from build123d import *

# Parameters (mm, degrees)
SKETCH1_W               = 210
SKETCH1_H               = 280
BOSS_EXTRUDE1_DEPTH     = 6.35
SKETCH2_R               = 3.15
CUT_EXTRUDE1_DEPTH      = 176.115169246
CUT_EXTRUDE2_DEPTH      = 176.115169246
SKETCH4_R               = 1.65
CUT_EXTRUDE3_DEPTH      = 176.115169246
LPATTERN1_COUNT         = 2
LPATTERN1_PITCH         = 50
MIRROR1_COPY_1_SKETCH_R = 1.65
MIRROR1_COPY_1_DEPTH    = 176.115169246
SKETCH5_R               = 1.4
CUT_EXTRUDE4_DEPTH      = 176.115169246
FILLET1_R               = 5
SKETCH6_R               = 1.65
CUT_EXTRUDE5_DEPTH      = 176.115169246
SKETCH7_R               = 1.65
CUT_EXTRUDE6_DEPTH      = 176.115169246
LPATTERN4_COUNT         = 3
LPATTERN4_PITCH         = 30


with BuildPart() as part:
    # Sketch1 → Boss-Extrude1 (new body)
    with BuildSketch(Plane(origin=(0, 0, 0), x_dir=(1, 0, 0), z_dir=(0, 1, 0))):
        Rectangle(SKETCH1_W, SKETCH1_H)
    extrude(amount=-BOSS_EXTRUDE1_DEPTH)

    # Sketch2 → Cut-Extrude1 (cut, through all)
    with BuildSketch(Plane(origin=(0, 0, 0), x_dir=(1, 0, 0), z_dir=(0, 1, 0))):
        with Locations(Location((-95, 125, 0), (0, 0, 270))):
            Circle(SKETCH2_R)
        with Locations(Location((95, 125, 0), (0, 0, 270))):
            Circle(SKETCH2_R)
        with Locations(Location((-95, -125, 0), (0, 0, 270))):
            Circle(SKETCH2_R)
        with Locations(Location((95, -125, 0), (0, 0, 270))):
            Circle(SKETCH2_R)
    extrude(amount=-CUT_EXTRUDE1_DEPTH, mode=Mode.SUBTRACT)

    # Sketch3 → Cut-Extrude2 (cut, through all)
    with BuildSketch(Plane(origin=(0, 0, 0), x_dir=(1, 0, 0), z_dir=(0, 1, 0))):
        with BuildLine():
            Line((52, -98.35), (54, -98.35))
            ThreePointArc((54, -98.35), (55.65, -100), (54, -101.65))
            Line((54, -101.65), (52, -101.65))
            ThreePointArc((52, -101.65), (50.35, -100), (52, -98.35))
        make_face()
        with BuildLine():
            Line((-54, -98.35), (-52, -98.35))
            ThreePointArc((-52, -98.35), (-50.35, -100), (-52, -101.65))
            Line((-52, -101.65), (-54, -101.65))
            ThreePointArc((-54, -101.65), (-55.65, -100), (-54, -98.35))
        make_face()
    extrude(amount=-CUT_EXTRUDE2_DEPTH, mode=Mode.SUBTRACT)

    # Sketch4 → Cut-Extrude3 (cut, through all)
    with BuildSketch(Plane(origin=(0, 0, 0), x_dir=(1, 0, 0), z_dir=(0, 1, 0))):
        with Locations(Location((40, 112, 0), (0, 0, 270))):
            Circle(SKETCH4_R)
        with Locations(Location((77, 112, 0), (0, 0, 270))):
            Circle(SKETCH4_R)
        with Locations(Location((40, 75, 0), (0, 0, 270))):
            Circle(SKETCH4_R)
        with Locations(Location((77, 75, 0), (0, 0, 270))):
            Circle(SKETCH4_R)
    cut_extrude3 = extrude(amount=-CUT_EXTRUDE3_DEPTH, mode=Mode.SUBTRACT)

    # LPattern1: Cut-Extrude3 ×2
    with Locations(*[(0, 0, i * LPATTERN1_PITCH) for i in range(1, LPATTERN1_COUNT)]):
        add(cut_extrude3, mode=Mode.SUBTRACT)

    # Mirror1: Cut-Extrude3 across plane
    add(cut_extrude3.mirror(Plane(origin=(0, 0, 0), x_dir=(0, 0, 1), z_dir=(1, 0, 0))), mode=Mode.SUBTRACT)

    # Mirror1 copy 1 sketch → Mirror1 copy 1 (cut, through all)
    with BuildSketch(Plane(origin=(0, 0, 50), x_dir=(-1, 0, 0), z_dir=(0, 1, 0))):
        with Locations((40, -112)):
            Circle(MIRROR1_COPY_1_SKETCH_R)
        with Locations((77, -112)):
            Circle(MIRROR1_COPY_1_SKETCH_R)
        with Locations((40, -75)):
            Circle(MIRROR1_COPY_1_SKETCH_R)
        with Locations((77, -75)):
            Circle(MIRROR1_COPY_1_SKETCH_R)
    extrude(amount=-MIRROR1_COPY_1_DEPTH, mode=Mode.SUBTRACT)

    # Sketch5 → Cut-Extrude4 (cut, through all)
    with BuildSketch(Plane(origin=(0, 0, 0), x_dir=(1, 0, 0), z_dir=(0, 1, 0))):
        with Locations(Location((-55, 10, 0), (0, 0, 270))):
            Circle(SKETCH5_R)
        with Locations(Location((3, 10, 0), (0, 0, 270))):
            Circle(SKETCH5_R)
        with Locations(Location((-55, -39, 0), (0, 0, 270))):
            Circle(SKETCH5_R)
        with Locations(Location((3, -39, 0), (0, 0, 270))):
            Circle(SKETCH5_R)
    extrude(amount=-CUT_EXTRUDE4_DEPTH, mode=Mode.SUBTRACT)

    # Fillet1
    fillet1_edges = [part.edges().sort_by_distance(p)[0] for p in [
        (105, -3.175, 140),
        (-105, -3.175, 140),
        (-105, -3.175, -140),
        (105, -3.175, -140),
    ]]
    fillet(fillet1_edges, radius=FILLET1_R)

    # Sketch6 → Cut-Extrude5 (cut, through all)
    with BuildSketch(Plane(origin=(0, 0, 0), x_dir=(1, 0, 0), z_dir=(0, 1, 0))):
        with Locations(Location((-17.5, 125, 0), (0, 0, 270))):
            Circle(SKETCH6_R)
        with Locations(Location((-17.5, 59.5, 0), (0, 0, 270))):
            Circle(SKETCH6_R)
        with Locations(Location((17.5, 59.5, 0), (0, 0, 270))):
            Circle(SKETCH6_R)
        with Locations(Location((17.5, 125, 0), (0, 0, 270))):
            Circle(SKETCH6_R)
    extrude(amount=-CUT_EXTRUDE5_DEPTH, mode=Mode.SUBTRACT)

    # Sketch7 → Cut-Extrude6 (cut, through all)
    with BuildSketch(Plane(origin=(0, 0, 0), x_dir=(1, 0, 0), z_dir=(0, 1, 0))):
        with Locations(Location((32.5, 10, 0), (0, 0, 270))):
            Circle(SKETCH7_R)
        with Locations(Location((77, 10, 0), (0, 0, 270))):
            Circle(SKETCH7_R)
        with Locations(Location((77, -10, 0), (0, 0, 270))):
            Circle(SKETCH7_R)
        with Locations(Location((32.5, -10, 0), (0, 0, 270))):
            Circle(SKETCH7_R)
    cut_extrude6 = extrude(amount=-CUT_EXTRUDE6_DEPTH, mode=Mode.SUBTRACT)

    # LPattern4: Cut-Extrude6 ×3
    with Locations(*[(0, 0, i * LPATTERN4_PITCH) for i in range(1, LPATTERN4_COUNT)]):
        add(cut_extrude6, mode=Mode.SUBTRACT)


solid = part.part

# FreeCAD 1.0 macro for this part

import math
import FreeCAD as App
import Part
import Sketcher

V = App.Vector


def edges_at(feature, points):
    """Names of the edges that pass closest to the given points."""
    edges = feature.Shape.Edges
    near = lambda p: min(range(len(edges)), key=lambda i: edges[i].distToShape(Part.Vertex(*p))[0])
    return sorted({f"Edge{near(p) + 1}" for p in points})


def add_polygon(sketch, points):
    """Adds a closed chain of lines whose ends are joined by coincident constraints."""
    first, n = sketch.GeometryCount, len(points)
    for a, b in zip(points, points[1:] + points[:1]):
        sketch.addGeometry(Part.LineSegment(App.Vector(*a, 0), App.Vector(*b, 0)), False)
    for i in range(n):
        sketch.addConstraint(Sketcher.Constraint("Coincident", first + i, 2, first + (i + 1) % n, 1))

doc = App.newDocument("Part")
params = doc.addObject("Spreadsheet::Sheet", "Params")
for row, (alias, value) in enumerate([
    ("sketch1_width", "210 mm"),
    ("sketch1_height", "280 mm"),
    ("pad1_length", "6.35 mm"),
    ("sketch2_diameter", "6.3 mm"),
    ("sketch3_width", "2 mm"),
    ("sketch3_radius", "1.65 mm"),
    ("sketch4_diameter", "3.3 mm"),
    ("linearpattern_pitch", "50 mm"),
    ("sketch5_diameter", "3.3 mm"),
    ("sketch6_diameter", "2.8 mm"),
    ("fillet_radius", "5 mm"),
    ("sketch7_diameter", "3.3 mm"),
    ("sketch8_diameter", "3.3 mm"),
    ("linearpattern2_pitch", "30 mm"),
], start=1):
    params.set(f"A{row}", alias)
    params.set(f"B{row}", "=" + value)
    params.setAlias(f"B{row}", alias)

body = doc.addObject("PartDesign::Body", "Body")

# Sketch on XZ plane
sketch1 = body.newObject("Sketcher::SketchObject", "Sketch")
sketch1.AttachmentSupport = (doc.getObject("XZ_Plane"), [""])
sketch1.MapMode = "FlatFace"
add_polygon(sketch1, [(-105, -140), (-105, 140), (105, 140), (105, -140)])  # lines 0-3
sketch1.addConstraint(Sketcher.Constraint("Vertical", 0))
sketch1.addConstraint(Sketcher.Constraint("Horizontal", 1))
sketch1.addConstraint(Sketcher.Constraint("Vertical", 2))
sketch1.addConstraint(Sketcher.Constraint("Horizontal", 3))
sketch1.addConstraint(Sketcher.Constraint("Symmetric", 0, 2, 2, 2, -1, 1))
sketch1.addConstraint(Sketcher.Constraint("DistanceX", 1, 1, 1, 2, 210.0))
sketch1.addConstraint(Sketcher.Constraint("DistanceY", 0, 1, 0, 2, 280.0))
sketch1.setExpression("Constraints[9]", "Params.sketch1_width")
sketch1.setExpression("Constraints[10]", "Params.sketch1_height")
pad1 = body.newObject("PartDesign::Pad", "Pad")
pad1.Profile = sketch1
pad1.setExpression("Length", "Params.pad1_length")

# Sketch on XZ plane
sketch2 = body.newObject("Sketcher::SketchObject", "Sketch001")
sketch2.AttachmentSupport = (doc.getObject("XZ_Plane"), [""])
sketch2.MapMode = "FlatFace"
sketch2.addGeometry(Part.Circle(V(-95, -125, 0), V(0, 0, 1), 3.15), False)
sketch2.addGeometry(Part.Circle(V(95, -125, 0), V(0, 0, 1), 3.15), False)
sketch2.addGeometry(Part.Circle(V(-95, 125, 0), V(0, 0, 1), 3.15), False)
sketch2.addGeometry(Part.Circle(V(95, 125, 0), V(0, 0, 1), 3.15), False)
sketch2.addConstraint(Sketcher.Constraint("Equal", 0, 1))
sketch2.addConstraint(Sketcher.Constraint("Equal", 1, 2))
sketch2.addConstraint(Sketcher.Constraint("Equal", 2, 3))
sketch2.addConstraint(Sketcher.Constraint("Symmetric", 1, 3, 2, 3, -1, 1))
sketch2.addConstraint(Sketcher.Constraint("Symmetric", 0, 3, 3, 3, -1, 1))
sketch2.addConstraint(Sketcher.Constraint("Symmetric", 0, 3, 1, 3, -2))
sketch2.addConstraint(Sketcher.Constraint("Diameter", 0, 6.3))
sketch2.addConstraint(Sketcher.Constraint("DistanceX", 0, 3, -1, 1, 95.0))
sketch2.addConstraint(Sketcher.Constraint("DistanceY", 0, 3, -1, 1, 125.0))
sketch2.setExpression("Constraints[6]", "Params.sketch2_diameter")
pocket1 = body.newObject("PartDesign::Pocket", "Pocket")
pocket1.Profile = sketch2
pocket1.Type = "ThroughAll"
pocket1.Reversed = True

# Sketch on XZ plane
sketch3 = body.newObject("Sketcher::SketchObject", "Sketch002")
sketch3.AttachmentSupport = (doc.getObject("XZ_Plane"), [""])
sketch3.MapMode = "FlatFace"
sketch3.addGeometry(Part.LineSegment(V(54, 98.35, 0), V(52, 98.35, 0)), False)
sketch3.addGeometry(Part.ArcOfCircle(Part.Circle(V(52, 100, 0), V(0, 0, 1), 1.65), math.radians(90), math.radians(270)), False)
sketch3.addGeometry(Part.LineSegment(V(52, 101.65, 0), V(54, 101.65, 0)), False)
sketch3.addGeometry(Part.ArcOfCircle(Part.Circle(V(54, 100, 0), V(0, 0, 1), 1.65), math.radians(-90), math.radians(90)), False)
sketch3.addGeometry(Part.LineSegment(V(-52, 98.35, 0), V(-54, 98.35, 0)), False)
sketch3.addGeometry(Part.ArcOfCircle(Part.Circle(V(-54, 100, 0), V(0, 0, 1), 1.65), math.radians(90), math.radians(270)), False)
sketch3.addGeometry(Part.LineSegment(V(-54, 101.65, 0), V(-52, 101.65, 0)), False)
sketch3.addGeometry(Part.ArcOfCircle(Part.Circle(V(-52, 100, 0), V(0, 0, 1), 1.65), math.radians(-90), math.radians(90)), False)
sketch3.addConstraint(Sketcher.Constraint("Tangent", 0, 2, 1, 2))
sketch3.addConstraint(Sketcher.Constraint("Tangent", 1, 1, 2, 1))
sketch3.addConstraint(Sketcher.Constraint("Tangent", 2, 2, 3, 2))
sketch3.addConstraint(Sketcher.Constraint("Tangent", 3, 1, 0, 1))
sketch3.addConstraint(Sketcher.Constraint("Tangent", 4, 2, 5, 2))
sketch3.addConstraint(Sketcher.Constraint("Tangent", 5, 1, 6, 1))
sketch3.addConstraint(Sketcher.Constraint("Tangent", 6, 2, 7, 2))
sketch3.addConstraint(Sketcher.Constraint("Tangent", 7, 1, 4, 1))
sketch3.addConstraint(Sketcher.Constraint("Horizontal", 0))
sketch3.addConstraint(Sketcher.Constraint("Horizontal", 2))
sketch3.addConstraint(Sketcher.Constraint("Horizontal", 4))
sketch3.addConstraint(Sketcher.Constraint("Horizontal", 6))
sketch3.addConstraint(Sketcher.Constraint("Equal", 3, 5))
sketch3.addConstraint(Sketcher.Constraint("Symmetric", 3, 3, 5, 3, -2))
sketch3.addConstraint(Sketcher.Constraint("Equal", 2, 4))
sketch3.addConstraint(Sketcher.Constraint("DistanceX", 0, 2, 0, 1, 2.0))
sketch3.addConstraint(Sketcher.Constraint("Radius", 1, 1.65))
sketch3.addConstraint(Sketcher.Constraint("DistanceX", -1, 1, 1, 3, 52.0))
sketch3.addConstraint(Sketcher.Constraint("DistanceY", -1, 1, 1, 3, 100.0))
sketch3.setExpression("Constraints[15]", "Params.sketch3_width")
sketch3.setExpression("Constraints[16]", "Params.sketch3_radius")
pocket2 = body.newObject("PartDesign::Pocket", "Pocket001")
pocket2.Profile = sketch3
pocket2.Type = "ThroughAll"
pocket2.Reversed = True

# Sketch on XZ plane
sketch4 = body.newObject("Sketcher::SketchObject", "Sketch003")
sketch4.AttachmentSupport = (doc.getObject("XZ_Plane"), [""])
sketch4.MapMode = "FlatFace"
sketch4.addGeometry(Part.Circle(V(40, -112, 0), V(0, 0, 1), 1.65), False)
sketch4.addGeometry(Part.Circle(V(77, -112, 0), V(0, 0, 1), 1.65), False)
sketch4.addGeometry(Part.Circle(V(40, -75, 0), V(0, 0, 1), 1.65), False)
sketch4.addGeometry(Part.Circle(V(77, -75, 0), V(0, 0, 1), 1.65), False)
sketch4.addConstraint(Sketcher.Constraint("Equal", 0, 1))
sketch4.addConstraint(Sketcher.Constraint("Equal", 1, 2))
sketch4.addConstraint(Sketcher.Constraint("Equal", 2, 3))
sketch4.addConstraint(Sketcher.Constraint("Horizontal", 0, 3, 1, 3))
sketch4.addConstraint(Sketcher.Constraint("Horizontal", 2, 3, 3, 3))
sketch4.addConstraint(Sketcher.Constraint("Vertical", 0, 3, 2, 3))
sketch4.addConstraint(Sketcher.Constraint("Vertical", 1, 3, 3, 3))
sketch4.addConstraint(Sketcher.Constraint("Diameter", 0, 3.3))
sketch4.addConstraint(Sketcher.Constraint("DistanceX", -1, 1, 0, 3, 40.0))
sketch4.addConstraint(Sketcher.Constraint("DistanceY", 0, 3, -1, 1, 112.0))
sketch4.addConstraint(Sketcher.Constraint("DistanceX", -1, 1, 1, 3, 77.0))
sketch4.addConstraint(Sketcher.Constraint("DistanceY", 2, 3, -1, 1, 75.0))
sketch4.setExpression("Constraints[7]", "Params.sketch4_diameter")
pocket3 = body.newObject("PartDesign::Pocket", "Pocket002")
pocket3.Profile = sketch4
pocket3.Type = "ThroughAll"
pocket3.Reversed = True
doc.recompute()

linearpattern = body.newObject("PartDesign::LinearPattern", "LinearPattern")
linearpattern.Originals = [pocket3]
linearpattern.Direction = (doc.getObject("Z_Axis"), [""])
linearpattern.Mode = "offset"
linearpattern.setExpression("Offset", "Params.linearpattern_pitch")
linearpattern.Occurrences = 2
body.Tip = linearpattern
doc.recompute()

mirrored = body.newObject("PartDesign::Mirrored", "Mirrored")
mirrored.Originals = [pocket3]
mirrored.MirrorPlane = (doc.getObject("YZ_Plane"), [""])
body.Tip = mirrored

# Sketch on XZ plane
sketch5 = body.newObject("Sketcher::SketchObject", "Sketch004")
sketch5.AttachmentSupport = (doc.getObject("XZ_Plane"), [""])
sketch5.MapMode = "FlatFace"
sketch5.addGeometry(Part.Circle(V(-40, -62, 0), V(0, 0, 1), 1.65), False)
sketch5.addGeometry(Part.Circle(V(-77, -62, 0), V(0, 0, 1), 1.65), False)
sketch5.addGeometry(Part.Circle(V(-40, -25, 0), V(0, 0, 1), 1.65), False)
sketch5.addGeometry(Part.Circle(V(-77, -25, 0), V(0, 0, 1), 1.65), False)
sketch5.addConstraint(Sketcher.Constraint("Equal", 0, 1))
sketch5.addConstraint(Sketcher.Constraint("Equal", 1, 2))
sketch5.addConstraint(Sketcher.Constraint("Equal", 2, 3))
sketch5.addConstraint(Sketcher.Constraint("Horizontal", 0, 3, 1, 3))
sketch5.addConstraint(Sketcher.Constraint("Horizontal", 2, 3, 3, 3))
sketch5.addConstraint(Sketcher.Constraint("Vertical", 0, 3, 2, 3))
sketch5.addConstraint(Sketcher.Constraint("Vertical", 1, 3, 3, 3))
sketch5.addConstraint(Sketcher.Constraint("Diameter", 0, 3.3))
sketch5.addConstraint(Sketcher.Constraint("DistanceX", 0, 3, -1, 1, 40.0))
sketch5.addConstraint(Sketcher.Constraint("DistanceY", 0, 3, -1, 1, 62.0))
sketch5.addConstraint(Sketcher.Constraint("DistanceX", 1, 3, -1, 1, 77.0))
sketch5.addConstraint(Sketcher.Constraint("DistanceY", 2, 3, -1, 1, 25.0))
sketch5.setExpression("Constraints[7]", "Params.sketch5_diameter")
pocket4 = body.newObject("PartDesign::Pocket", "Pocket003")
pocket4.Profile = sketch5
pocket4.Type = "ThroughAll"
pocket4.Reversed = True

# Sketch on XZ plane
sketch6 = body.newObject("Sketcher::SketchObject", "Sketch005")
sketch6.AttachmentSupport = (doc.getObject("XZ_Plane"), [""])
sketch6.MapMode = "FlatFace"
sketch6.addGeometry(Part.Circle(V(-55, -10, 0), V(0, 0, 1), 1.4), False)
sketch6.addGeometry(Part.Circle(V(3, -10, 0), V(0, 0, 1), 1.4), False)
sketch6.addGeometry(Part.Circle(V(-55, 39, 0), V(0, 0, 1), 1.4), False)
sketch6.addGeometry(Part.Circle(V(3, 39, 0), V(0, 0, 1), 1.4), False)
sketch6.addConstraint(Sketcher.Constraint("Equal", 0, 1))
sketch6.addConstraint(Sketcher.Constraint("Equal", 1, 2))
sketch6.addConstraint(Sketcher.Constraint("Equal", 2, 3))
sketch6.addConstraint(Sketcher.Constraint("Horizontal", 0, 3, 1, 3))
sketch6.addConstraint(Sketcher.Constraint("Horizontal", 2, 3, 3, 3))
sketch6.addConstraint(Sketcher.Constraint("Vertical", 0, 3, 2, 3))
sketch6.addConstraint(Sketcher.Constraint("Vertical", 1, 3, 3, 3))
sketch6.addConstraint(Sketcher.Constraint("Diameter", 0, 2.8))
sketch6.addConstraint(Sketcher.Constraint("DistanceX", 0, 3, -1, 1, 55.0))
sketch6.addConstraint(Sketcher.Constraint("DistanceY", 0, 3, -1, 1, 10.0))
sketch6.addConstraint(Sketcher.Constraint("DistanceX", -1, 1, 1, 3, 3.0))
sketch6.addConstraint(Sketcher.Constraint("DistanceY", -1, 1, 2, 3, 39.0))
sketch6.setExpression("Constraints[7]", "Params.sketch6_diameter")
pocket5 = body.newObject("PartDesign::Pocket", "Pocket004")
pocket5.Profile = sketch6
pocket5.Type = "ThroughAll"
pocket5.Reversed = True
doc.recompute()

fillet = body.newObject("PartDesign::Fillet", "Fillet")
fillet.Base = (pocket5, edges_at(pocket5, [
    (105, -3.175, 140),
    (-105, -3.175, 140),
    (-105, -3.175, -140),
    (105, -3.175, -140),
]))
fillet.setExpression("Radius", "Params.fillet_radius")

# Sketch on XZ plane
sketch7 = body.newObject("Sketcher::SketchObject", "Sketch006")
sketch7.AttachmentSupport = (doc.getObject("XZ_Plane"), [""])
sketch7.MapMode = "FlatFace"
sketch7.addGeometry(Part.Circle(V(-17.5, -125, 0), V(0, 0, 1), 1.65), False)
sketch7.addGeometry(Part.Circle(V(-17.5, -59.5, 0), V(0, 0, 1), 1.65), False)
sketch7.addGeometry(Part.Circle(V(17.5, -59.5, 0), V(0, 0, 1), 1.65), False)
sketch7.addGeometry(Part.Circle(V(17.5, -125, 0), V(0, 0, 1), 1.65), False)
sketch7.addConstraint(Sketcher.Constraint("Equal", 0, 1))
sketch7.addConstraint(Sketcher.Constraint("Equal", 1, 2))
sketch7.addConstraint(Sketcher.Constraint("Equal", 2, 3))
sketch7.addConstraint(Sketcher.Constraint("Symmetric", 1, 3, 2, 3, -2))
sketch7.addConstraint(Sketcher.Constraint("Symmetric", 0, 3, 3, 3, -2))
sketch7.addConstraint(Sketcher.Constraint("Vertical", 0, 3, 1, 3))
sketch7.addConstraint(Sketcher.Constraint("Diameter", 0, 3.3))
sketch7.addConstraint(Sketcher.Constraint("DistanceY", 0, 3, -1, 1, 125.0))
sketch7.addConstraint(Sketcher.Constraint("DistanceX", 1, 3, 2, 3, 35.0))
sketch7.addConstraint(Sketcher.Constraint("DistanceY", 1, 3, -1, 1, 59.5))
sketch7.setExpression("Constraints[6]", "Params.sketch7_diameter")
pocket6 = body.newObject("PartDesign::Pocket", "Pocket005")
pocket6.Profile = sketch7
pocket6.Type = "ThroughAll"
pocket6.Reversed = True

# Sketch on XZ plane
sketch8 = body.newObject("Sketcher::SketchObject", "Sketch007")
sketch8.AttachmentSupport = (doc.getObject("XZ_Plane"), [""])
sketch8.MapMode = "FlatFace"
sketch8.addGeometry(Part.Circle(V(32.5, -10, 0), V(0, 0, 1), 1.65), False)
sketch8.addGeometry(Part.Circle(V(77, -10, 0), V(0, 0, 1), 1.65), False)
sketch8.addGeometry(Part.Circle(V(77, 10, 0), V(0, 0, 1), 1.65), False)
sketch8.addGeometry(Part.Circle(V(32.5, 10, 0), V(0, 0, 1), 1.65), False)
sketch8.addConstraint(Sketcher.Constraint("Equal", 0, 1))
sketch8.addConstraint(Sketcher.Constraint("Equal", 1, 2))
sketch8.addConstraint(Sketcher.Constraint("Equal", 2, 3))
sketch8.addConstraint(Sketcher.Constraint("Symmetric", 1, 3, 2, 3, -1))
sketch8.addConstraint(Sketcher.Constraint("Symmetric", 0, 3, 3, 3, -1))
sketch8.addConstraint(Sketcher.Constraint("Horizontal", 0, 3, 1, 3))
sketch8.addConstraint(Sketcher.Constraint("Diameter", 0, 3.3))
sketch8.addConstraint(Sketcher.Constraint("DistanceY", 0, 3, -1, 1, 10.0))
sketch8.addConstraint(Sketcher.Constraint("DistanceX", -1, 1, 1, 3, 77.0))
sketch8.addConstraint(Sketcher.Constraint("DistanceX", -1, 1, 0, 3, 32.5))
sketch8.setExpression("Constraints[6]", "Params.sketch8_diameter")
pocket7 = body.newObject("PartDesign::Pocket", "Pocket006")
pocket7.Profile = sketch8
pocket7.Type = "ThroughAll"
pocket7.Reversed = True
doc.recompute()

linearpattern2 = body.newObject("PartDesign::LinearPattern", "LinearPattern001")
linearpattern2.Originals = [pocket7]
linearpattern2.Direction = (doc.getObject("Z_Axis"), [""])
linearpattern2.Mode = "offset"
linearpattern2.setExpression("Offset", "Params.linearpattern2_pitch")
linearpattern2.Occurrences = 3
body.Tip = linearpattern2

doc.recompute()
